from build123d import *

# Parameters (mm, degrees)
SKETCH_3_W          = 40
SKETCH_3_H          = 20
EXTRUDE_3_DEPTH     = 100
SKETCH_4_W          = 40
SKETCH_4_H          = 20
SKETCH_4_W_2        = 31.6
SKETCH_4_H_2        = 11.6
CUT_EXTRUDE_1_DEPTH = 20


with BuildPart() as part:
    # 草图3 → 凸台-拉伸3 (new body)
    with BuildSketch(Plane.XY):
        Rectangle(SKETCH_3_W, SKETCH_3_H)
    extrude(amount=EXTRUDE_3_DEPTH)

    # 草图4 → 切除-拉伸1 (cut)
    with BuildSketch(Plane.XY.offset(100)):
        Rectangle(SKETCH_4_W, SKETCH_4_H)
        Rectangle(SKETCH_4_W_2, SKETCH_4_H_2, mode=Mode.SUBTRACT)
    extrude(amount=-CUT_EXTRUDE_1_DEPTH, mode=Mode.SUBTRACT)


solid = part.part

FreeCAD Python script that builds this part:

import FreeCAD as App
import Part
import Sketcher

V = App.Vector


def add_polygon(sketch, points):
    """Adds a closed chain of lines whose ends are joined by coincident constraints."""
    first, n = sketch.GeometryCount, len(points)
    for a, b in zip(points, points[1:] + points[:1]):
        sketch.addGeometry(Part.LineSegment(App.Vector(*a, 0), App.Vector(*b, 0)), False)
    for i in range(n):
        sketch.addConstraint(Sketcher.Constraint("Coincident", first + i, 2, first + (i + 1) % n, 1))

doc = App.newDocument("Part")
body = doc.addObject("PartDesign::Body", "Body")

# Sketch on XY plane
sketch1 = body.newObject("Sketcher::SketchObject", "Sketch")
sketch1.AttachmentSupport = (doc.getObject("XY_Plane"), [""])
sketch1.MapMode = "FlatFace"
add_polygon(sketch1, [(-20, 10), (-20, -10), (20, -10), (20, 10)])  # lines 0-3
sketch1.addConstraint(Sketcher.Constraint("Vertical", 0))
sketch1.addConstraint(Sketcher.Constraint("Horizontal", 1))
sketch1.addConstraint(Sketcher.Constraint("Vertical", 2))
sketch1.addConstraint(Sketcher.Constraint("Horizontal", 3))
sketch1.addConstraint(Sketcher.Constraint("Symmetric", 0, 2, 2, 2, -1, 1))
sketch1.addConstraint(Sketcher.Constraint("DistanceX", 1, 1, 1, 2, 40.0))
sketch1.addConstraint(Sketcher.Constraint("DistanceY", 0, 2, 0, 1, 20.0))
pad1 = body.newObject("PartDesign::Pad", "Pad")
pad1.Profile = sketch1
pad1.Length = 100

# Sketch on XY plane
sketch2 = body.newObject("Sketcher::SketchObject", "Sketch001")
sketch2.AttachmentSupport = (doc.getObject("XY_Plane"), [""])
sketch2.MapMode = "FlatFace"
sketch2.AttachmentOffset = App.Placement(V(0, 0, 100), App.Rotation())
add_polygon(sketch2, [(-20, 10), (-20, -10), (20, -10), (20, 10)])  # lines 0-3
add_polygon(sketch2, [(16, -6), (-16, -6), (-16, 6), (16, 6)])  # lines 4-7
sketch2.addConstraint(Sketcher.Constraint("Vertical", 0))
sketch2.addConstraint(Sketcher.Constraint("Horizontal", 1))
sketch2.addConstraint(Sketcher.Constraint("Vertical", 2))
sketch2.addConstraint(Sketcher.Constraint("Horizontal", 3))
sketch2.addConstraint(Sketcher.Constraint("Horizontal", 4))
sketch2.addConstraint(Sketcher.Constraint("Vertical", 5))
sketch2.addConstraint(Sketcher.Constraint("Horizontal", 6))
sketch2.addConstraint(Sketcher.Constraint("Vertical", 7))
sketch2.addConstraint(Sketcher.Constraint("Symmetric", 0, 2, 2, 2, -1, 1))
sketch2.addConstraint(Sketcher.Constraint("Symmetric", 4, 2, 6, 2, -1, 1))
sketch2.addConstraint(Sketcher.Constraint("DistanceX", 1, 1, 1, 2, 40.0))
sketch2.addConstraint(Sketcher.Constraint("DistanceY", 0, 2, 0, 1, 20.0))
sketch2.addConstraint(Sketcher.Constraint("DistanceX", 4, 2, 4, 1, 31.6))
sketch2.addConstraint(Sketcher.Constraint("DistanceY", 5, 1, 5, 2, 11.6))
pocket1 = body.newObject("PartDesign::Pocket", "Pocket")
pocket1.Profile = sketch2
pocket1.Length = 20

doc.recompute()
